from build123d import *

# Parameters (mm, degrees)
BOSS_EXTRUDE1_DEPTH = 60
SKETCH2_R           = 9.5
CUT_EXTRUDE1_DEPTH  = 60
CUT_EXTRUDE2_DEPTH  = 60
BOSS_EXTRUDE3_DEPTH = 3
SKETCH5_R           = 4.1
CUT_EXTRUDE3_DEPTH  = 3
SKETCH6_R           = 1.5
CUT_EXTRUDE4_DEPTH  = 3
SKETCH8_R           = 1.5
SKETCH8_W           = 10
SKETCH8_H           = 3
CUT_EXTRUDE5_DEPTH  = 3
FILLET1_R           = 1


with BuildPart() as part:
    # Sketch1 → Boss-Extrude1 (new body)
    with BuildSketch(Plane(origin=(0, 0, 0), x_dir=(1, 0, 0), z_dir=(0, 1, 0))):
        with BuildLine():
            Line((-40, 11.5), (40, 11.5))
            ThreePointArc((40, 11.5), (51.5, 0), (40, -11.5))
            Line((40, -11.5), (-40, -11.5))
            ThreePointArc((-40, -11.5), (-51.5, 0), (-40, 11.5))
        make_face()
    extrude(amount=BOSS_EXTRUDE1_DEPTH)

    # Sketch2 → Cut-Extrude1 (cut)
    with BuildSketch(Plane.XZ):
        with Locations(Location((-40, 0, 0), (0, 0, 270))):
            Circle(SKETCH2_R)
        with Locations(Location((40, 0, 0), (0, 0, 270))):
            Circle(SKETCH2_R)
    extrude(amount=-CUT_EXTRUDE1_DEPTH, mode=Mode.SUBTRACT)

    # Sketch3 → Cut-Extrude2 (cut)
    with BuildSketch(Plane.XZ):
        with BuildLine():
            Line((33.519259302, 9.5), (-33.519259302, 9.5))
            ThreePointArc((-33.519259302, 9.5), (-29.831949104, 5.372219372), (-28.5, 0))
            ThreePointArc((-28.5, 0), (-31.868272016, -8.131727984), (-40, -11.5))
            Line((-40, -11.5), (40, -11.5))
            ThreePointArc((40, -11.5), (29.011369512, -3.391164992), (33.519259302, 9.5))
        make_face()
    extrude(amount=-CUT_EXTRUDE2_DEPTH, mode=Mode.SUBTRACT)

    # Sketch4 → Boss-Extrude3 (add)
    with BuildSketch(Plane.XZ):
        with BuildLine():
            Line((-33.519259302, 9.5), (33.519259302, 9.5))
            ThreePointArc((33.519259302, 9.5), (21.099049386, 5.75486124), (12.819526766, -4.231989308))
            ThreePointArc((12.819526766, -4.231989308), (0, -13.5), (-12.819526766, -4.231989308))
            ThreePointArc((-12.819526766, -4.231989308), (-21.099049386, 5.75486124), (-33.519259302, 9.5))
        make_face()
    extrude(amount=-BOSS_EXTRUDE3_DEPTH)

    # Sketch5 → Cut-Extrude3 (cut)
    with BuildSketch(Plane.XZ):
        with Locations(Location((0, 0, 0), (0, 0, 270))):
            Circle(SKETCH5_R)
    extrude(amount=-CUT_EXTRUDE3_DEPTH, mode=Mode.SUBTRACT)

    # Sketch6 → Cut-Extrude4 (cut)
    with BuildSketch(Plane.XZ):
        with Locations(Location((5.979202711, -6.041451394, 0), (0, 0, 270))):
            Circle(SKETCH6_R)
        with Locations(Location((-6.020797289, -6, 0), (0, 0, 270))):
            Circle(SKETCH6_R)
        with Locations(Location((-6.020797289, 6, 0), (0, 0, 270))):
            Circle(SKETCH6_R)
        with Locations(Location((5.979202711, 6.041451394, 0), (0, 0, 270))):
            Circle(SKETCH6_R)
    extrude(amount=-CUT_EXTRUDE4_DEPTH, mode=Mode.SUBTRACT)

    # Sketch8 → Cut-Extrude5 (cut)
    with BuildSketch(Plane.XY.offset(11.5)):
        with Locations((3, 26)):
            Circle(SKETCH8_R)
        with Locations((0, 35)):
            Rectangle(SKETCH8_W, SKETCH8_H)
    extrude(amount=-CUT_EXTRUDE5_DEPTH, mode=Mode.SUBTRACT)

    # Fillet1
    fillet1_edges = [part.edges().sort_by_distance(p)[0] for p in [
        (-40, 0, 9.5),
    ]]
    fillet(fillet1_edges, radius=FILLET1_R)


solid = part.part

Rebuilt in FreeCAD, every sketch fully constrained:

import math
import FreeCAD as App
import Part
import Sketcher
from FreeCAD import Vector


def edges_at(feature, points):
    """Names of the edges that pass closest to the given points."""
    edges = feature.Shape.Edges
    near = lambda p: min(range(len(edges)), key=lambda i: edges[i].distToShape(Part.Vertex(*p))[0])
    return sorted({f"Edge{near(p) + 1}" for p in points})

doc = App.newDocument("Part")
params = doc.addObject("Spreadsheet::Sheet", "Params")
for row, (alias, value) in enumerate([
    ("sketch1_radius", "11.5 mm"),
    ("sketch1_width", "80 mm"),
    ("pad1_length", "60 mm"),
    ("sketch2_diameter", "19 mm"),
    ("pocket1_length", "60 mm"),
    ("sketch3_radius", "11.5 mm"),
    ("sketch3_width", "80 mm"),
    ("pocket2_length", "60 mm"),
    ("sketch4_radius", "13.5 mm"),
    ("pad2_length", "3 mm"),
    ("sketch5_diameter", "8.2 mm"),
    ("pocket3_length", "3 mm"),
    ("sketch6_diameter", "3 mm"),
    ("pocket4_length", "3 mm"),
    ("sketch7_diameter", "3 mm"),
    ("sketch7_width", "10 mm"),
    ("sketch7_height", "3 mm"),
    ("pocket5_length", "3 mm"),
    ("fillet_radius", "1 mm"),
], start=1):
    params.set(f"A{row}", alias)
    params.set(f"B{row}", "=" + value)
    params.setAlias(f"B{row}", alias)

body = doc.addObject("PartDesign::Body", "Body")

# Sketch on XZ plane
sketch1 = body.newObject("Sketcher::SketchObject", "Sketch")
sketch1.AttachmentSupport = (doc.getObject("XZ_Plane"), [""])
sketch1.MapMode = "FlatFace"
sketch1.addGeometry([
    Part.LineSegment(Vector(40, -12, 0), Vector(-40, -12, 0)),
    Part.ArcOfCircle(Part.Circle(Vector(-40, 0, 0), Vector(0, 0, 1), 12), math.radians(90), math.radians(270)),
    Part.LineSegment(Vector(-40, 12, 0), Vector(40, 12, 0)),
    Part.ArcOfCircle(Part.Circle(Vector(40, 0, 0), Vector(0, 0, 1), 12), math.radians(-90), math.radians(90)),
], False)
sketch1.addConstraint([
    Sketcher.Constraint("Tangent", 0, 2, 1, 2),
    Sketcher.Constraint("Tangent", 1, 1, 2, 1),
    Sketcher.Constraint("Tangent", 2, 2, 3, 2),
    Sketcher.Constraint("Tangent", 3, 1, 0, 1),
    Sketcher.Constraint("Horizontal", 0),
    Sketcher.Constraint("Horizontal", 2),
    Sketcher.Constraint("Symmetric", 1, 3, 3, 3, -1, 1),
    Sketcher.Constraint("Radius", 1, 11.5),
    Sketcher.Constraint("DistanceX", 0, 2, 0, 1, 80.0),
])
sketch1.setExpression("Constraints[7]", "Params.sketch1_radius")
sketch1.setExpression("Constraints[8]", "Params.sketch1_width")
pad1 = body.newObject("PartDesign::Pad", "Pad")
pad1.Profile = sketch1
pad1.setExpression("Length", "Params.pad1_length")
pad1.Reversed = True

# Sketch on XZ plane
sketch2 = body.newObject("Sketcher::SketchObject", "Sketch001")
sketch2.AttachmentSupport = (doc.getObject("XZ_Plane"), [""])
sketch2.MapMode = "FlatFace"
sketch2.addGeometry([
    Part.Circle(Vector(-40, 0, 0), Vector(0, 0, 1), 10),
    Part.Circle(Vector(40, 0, 0), Vector(0, 0, 1), 10),
], False)
sketch2.addConstraint([
    Sketcher.Constraint("Equal", 0, 1),
    Sketcher.Constraint("Symmetric", 0, 3, 1, 3, -1, 1),
    Sketcher.Constraint("PointOnObject", 0, 3, -1),
    Sketcher.Constraint("Diameter", 0, 19.0),
    Sketcher.Constraint("DistanceX", 0, 3, -1, 1, 40.0),
])
sketch2.setExpression("Constraints[3]", "Params.sketch2_diameter")
pocket1 = body.newObject("PartDesign::Pocket", "Pocket")
pocket1.Profile = sketch2
pocket1.setExpression("Length", "Params.pocket1_length")

# Sketch on XZ plane
sketch3 = body.newObject("Sketcher::SketchObject", "Sketch002")
sketch3.AttachmentSupport = (doc.getObject("XZ_Plane"), [""])
sketch3.MapMode = "FlatFace"
sketch3.addGeometry([
    Part.LineSegment(Vector(34, 10, 0), Vector(-34, 10, 0)),  # 0
    Part.ArcOfCircle(Part.Circle(Vector(-40, 0, 0), Vector(0, 0, 1), 11), math.radians(0), math.radians(56)),  # 1
    Part.ArcOfCircle(Part.Circle(Vector(-40, 0, 0), Vector(0, 0, 1), 11), math.radians(-90), math.radians(0)),  # 2
    Part.LineSegment(Vector(-40, -12, 0), Vector(40, -12, 0)),  # 3
    Part.ArcOfCircle(Part.Circle(Vector(40, 0, 0), Vector(0, 0, 1), 12), math.radians(124), math.radians(270)),  # 4
], False)
sketch3.addConstraint([
    Sketcher.Constraint("Coincident", 0, 2, 1, 2),
    Sketcher.Constraint("Tangent", 1, 1, 2, 2),
    Sketcher.Constraint("Tangent", 2, 1, 3, 1),
    Sketcher.Constraint("Tangent", 3, 2, 4, 2),
    Sketcher.Constraint("Coincident", 4, 1, 0, 1),
    Sketcher.Constraint("Horizontal", 0),
    Sketcher.Constraint("Horizontal", 3),
    Sketcher.Constraint("Equal", 1, 2),
    Sketcher.Constraint("Equal", 2, 4),
    Sketcher.Constraint("Symmetric", 1, 3, 4, 3, -1, 1),
    Sketcher.Constraint("PointOnObject", 1, 1, -1),
    Sketcher.Constraint("Radius", 1, 11.5),
    Sketcher.Constraint("DistanceX", 3, 1, 3, 2, 80.0),
    Sketcher.Constraint("DistanceY", 2, 1, 0, 2, 21.0),
])
sketch3.setExpression("Constraints[11]", "Params.sketch3_radius")
sketch3.setExpression("Constraints[12]", "Params.sketch3_width")
pocket2 = body.newObject("PartDesign::Pocket", "Pocket001")
pocket2.Profile = sketch3
pocket2.setExpression("Length", "Params.pocket2_length")

# Sketch on XZ plane
sketch4 = body.newObject("Sketcher::SketchObject", "Sketch003")
sketch4.AttachmentSupport = (doc.getObject("XZ_Plane"), [""])
sketch4.MapMode = "FlatFace"
sketch4.addGeometry([
    Part.LineSegment(Vector(34, 10, 0), Vector(-34, 10, 0)),
    Part.ArcOfCircle(Part.Circle(Vector(-34, -13, 0), Vector(0, 0, 1), 22), math.radians(23), math.radians(90)),
    Part.ArcOfCircle(Part.Circle(Vector(0, 0, 0), Vector(0, 0, 1), 14), math.radians(-162), math.radians(-18)),
    Part.ArcOfCircle(Part.Circle(Vector(34, -13, 0), Vector(0, 0, 1), 22), math.radians(90), math.radians(157)),
], False)
sketch4.addConstraint([
    Sketcher.Constraint("Tangent", 0, 2, 1, 2),
    Sketcher.Constraint("Coincident", 1, 1, 2, 1),
    Sketcher.Constraint("Coincident", 2, 2, 3, 2),
    Sketcher.Constraint("Tangent", 3, 1, 0, 1),
    Sketcher.Constraint("Horizontal", 0),
    Sketcher.Constraint("Coincident", 2, 3, -1, 1),
    Sketcher.Constraint("Equal", 1, 3),
    Sketcher.Constraint("Horizontal", 1, 1, 2, 2),
    Sketcher.Constraint("Radius", 2, 13.5),
    Sketcher.Constraint("DistanceY", -1, 1, 0, 2, 9.5),
    Sketcher.Constraint("Radius", 1, 22.467482),
    Sketcher.Constraint("DistanceX", 0, 2, 0, 1, 67.038519),
])
sketch4.setExpression("Constraints[8]", "Params.sketch4_radius")
pad2 = body.newObject("PartDesign::Pad", "Pad001")
pad2.Profile = sketch4
pad2.setExpression("Length", "Params.pad2_length")
pad2.Reversed = True

# Sketch on XZ plane
sketch5 = body.newObject("Sketcher::SketchObject", "Sketch004")
sketch5.AttachmentSupport = (doc.getObject("XZ_Plane"), [""])
sketch5.MapMode = "FlatFace"
sketch5.addGeometry(Part.Circle(Vector(0, 0, 0), Vector(0, 0, 1), 4.1), False)
sketch5.addConstraint([
    Sketcher.Constraint("Coincident", 0, 3, -1, 1),
    Sketcher.Constraint("Diameter", 0, 8.2),
])
sketch5.setExpression("Constraints[1]", "Params.sketch5_diameter")
pocket3 = body.newObject("PartDesign::Pocket", "Pocket002")
pocket3.Profile = sketch5
pocket3.setExpression("Length", "Params.pocket3_length")

# Sketch on XZ plane
sketch6 = body.newObject("Sketcher::SketchObject", "Sketch005")
sketch6.AttachmentSupport = (doc.getObject("XZ_Plane"), [""])
sketch6.MapMode = "FlatFace"
sketch6.addGeometry([
    Part.Circle(Vector(6, -6, 0), Vector(0, 0, 1), 1.5),
    Part.Circle(Vector(-6, -6, 0), Vector(0, 0, 1), 1.5),
    Part.Circle(Vector(-6, 6, 0), Vector(0, 0, 1), 1.5),
    Part.Circle(Vector(6, 6, 0), Vector(0, 0, 1), 1.5),
], False)
sketch6.addConstraint([
    Sketcher.Constraint("Equal", 0, 1),
    Sketcher.Constraint("Equal", 1, 2),
    Sketcher.Constraint("Equal", 2, 3),
    Sketcher.Constraint("Symmetric", 1, 3, 2, 3, -1),
    Sketcher.Constraint("Symmetric", 0, 3, 3, 3, -1),
    Sketcher.Constraint("Diameter", 0, 3.0),
    Sketcher.Constraint("DistanceY", 1, 3, -1, 1, 6.0),
    Sketcher.Constraint("DistanceX", 1, 3, 0, 3, 12.0),
    Sketcher.Constraint("DistanceY", 0, 3, -1, 1, 6.041451),
    Sketcher.Constraint("DistanceX", -1, 1, 0, 3, 5.979203),
])
sketch6.setExpression("Constraints[5]", "Params.sketch6_diameter")
pocket4 = body.newObject("PartDesign::Pocket", "Pocket003")
pocket4.Profile = sketch6
pocket4.setExpression("Length", "Params.pocket4_length")

# Sketch on XY plane
sketch7 = body.newObject("Sketcher::SketchObject", "Sketch006")
sketch7.AttachmentSupport = (doc.getObject("XY_Plane"), [""])
sketch7.MapMode = "FlatFace"
sketch7.AttachmentOffset = App.Placement(Vector(0, 0, 11.5), App.Rotation())
sketch7.addGeometry([
    Part.Circle(Vector(3, 26, 0), Vector(0, 0, 1), 1.5),  # 0
    Part.LineSegment(Vector(-5, 36.5, 0), Vector(-5, 33.5, 0)),  # 1
    Part.LineSegment(Vector(-5, 33.5, 0), Vector(5, 33.5, 0)),  # 2
    Part.LineSegment(Vector(5, 33.5, 0), Vector(5, 36.5, 0)),  # 3
    Part.LineSegment(Vector(5, 36.5, 0), Vector(-5, 36.5, 0)),  # 4
], False)
sketch7.addConstraint([
    Sketcher.Constraint("Coincident", 1, 2, 2, 1),
    Sketcher.Constraint("Coincident", 2, 2, 3, 1),
    Sketcher.Constraint("Coincident", 3, 2, 4, 1),
    Sketcher.Constraint("Coincident", 4, 2, 1, 1),
    Sketcher.Constraint("Vertical", 1),
    Sketcher.Constraint("Horizontal", 2),
    Sketcher.Constraint("Vertical", 3),
    Sketcher.Constraint("Horizontal", 4),
    Sketcher.Constraint("Diameter", 0, 3.0),
    Sketcher.Constraint("DistanceX", 2, 1, 2, 2, 10.0),
    Sketcher.Constraint("DistanceY", 1, 2, 1, 1, 3.0),
    Sketcher.Constraint("DistanceX", -1, 1, 0, 3, 3.0),
    Sketcher.Constraint("DistanceY", -1, 1, 0, 3, 26.0),
    Sketcher.Constraint("DistanceX", 1, 2, -1, 1, 5.0),
    Sketcher.Constraint("DistanceY", -1, 1, 1, 2, 33.5),
])
sketch7.setExpression("Constraints[8]", "Params.sketch7_diameter")
sketch7.setExpression("Constraints[9]", "Params.sketch7_width")
sketch7.setExpression("Constraints[10]", "Params.sketch7_height")
pocket5 = body.newObject("PartDesign::Pocket", "Pocket004")
pocket5.Profile = sketch7
pocket5.setExpression("Length", "Params.pocket5_length")
doc.recompute()

fillet = body.newObject("PartDesign::Fillet", "Fillet")
fillet.Base = (pocket5, edges_at(pocket5, [(-40, 0, 9.5)]))
fillet.setExpression("Radius", "Params.fillet_radius")

doc.recompute()
